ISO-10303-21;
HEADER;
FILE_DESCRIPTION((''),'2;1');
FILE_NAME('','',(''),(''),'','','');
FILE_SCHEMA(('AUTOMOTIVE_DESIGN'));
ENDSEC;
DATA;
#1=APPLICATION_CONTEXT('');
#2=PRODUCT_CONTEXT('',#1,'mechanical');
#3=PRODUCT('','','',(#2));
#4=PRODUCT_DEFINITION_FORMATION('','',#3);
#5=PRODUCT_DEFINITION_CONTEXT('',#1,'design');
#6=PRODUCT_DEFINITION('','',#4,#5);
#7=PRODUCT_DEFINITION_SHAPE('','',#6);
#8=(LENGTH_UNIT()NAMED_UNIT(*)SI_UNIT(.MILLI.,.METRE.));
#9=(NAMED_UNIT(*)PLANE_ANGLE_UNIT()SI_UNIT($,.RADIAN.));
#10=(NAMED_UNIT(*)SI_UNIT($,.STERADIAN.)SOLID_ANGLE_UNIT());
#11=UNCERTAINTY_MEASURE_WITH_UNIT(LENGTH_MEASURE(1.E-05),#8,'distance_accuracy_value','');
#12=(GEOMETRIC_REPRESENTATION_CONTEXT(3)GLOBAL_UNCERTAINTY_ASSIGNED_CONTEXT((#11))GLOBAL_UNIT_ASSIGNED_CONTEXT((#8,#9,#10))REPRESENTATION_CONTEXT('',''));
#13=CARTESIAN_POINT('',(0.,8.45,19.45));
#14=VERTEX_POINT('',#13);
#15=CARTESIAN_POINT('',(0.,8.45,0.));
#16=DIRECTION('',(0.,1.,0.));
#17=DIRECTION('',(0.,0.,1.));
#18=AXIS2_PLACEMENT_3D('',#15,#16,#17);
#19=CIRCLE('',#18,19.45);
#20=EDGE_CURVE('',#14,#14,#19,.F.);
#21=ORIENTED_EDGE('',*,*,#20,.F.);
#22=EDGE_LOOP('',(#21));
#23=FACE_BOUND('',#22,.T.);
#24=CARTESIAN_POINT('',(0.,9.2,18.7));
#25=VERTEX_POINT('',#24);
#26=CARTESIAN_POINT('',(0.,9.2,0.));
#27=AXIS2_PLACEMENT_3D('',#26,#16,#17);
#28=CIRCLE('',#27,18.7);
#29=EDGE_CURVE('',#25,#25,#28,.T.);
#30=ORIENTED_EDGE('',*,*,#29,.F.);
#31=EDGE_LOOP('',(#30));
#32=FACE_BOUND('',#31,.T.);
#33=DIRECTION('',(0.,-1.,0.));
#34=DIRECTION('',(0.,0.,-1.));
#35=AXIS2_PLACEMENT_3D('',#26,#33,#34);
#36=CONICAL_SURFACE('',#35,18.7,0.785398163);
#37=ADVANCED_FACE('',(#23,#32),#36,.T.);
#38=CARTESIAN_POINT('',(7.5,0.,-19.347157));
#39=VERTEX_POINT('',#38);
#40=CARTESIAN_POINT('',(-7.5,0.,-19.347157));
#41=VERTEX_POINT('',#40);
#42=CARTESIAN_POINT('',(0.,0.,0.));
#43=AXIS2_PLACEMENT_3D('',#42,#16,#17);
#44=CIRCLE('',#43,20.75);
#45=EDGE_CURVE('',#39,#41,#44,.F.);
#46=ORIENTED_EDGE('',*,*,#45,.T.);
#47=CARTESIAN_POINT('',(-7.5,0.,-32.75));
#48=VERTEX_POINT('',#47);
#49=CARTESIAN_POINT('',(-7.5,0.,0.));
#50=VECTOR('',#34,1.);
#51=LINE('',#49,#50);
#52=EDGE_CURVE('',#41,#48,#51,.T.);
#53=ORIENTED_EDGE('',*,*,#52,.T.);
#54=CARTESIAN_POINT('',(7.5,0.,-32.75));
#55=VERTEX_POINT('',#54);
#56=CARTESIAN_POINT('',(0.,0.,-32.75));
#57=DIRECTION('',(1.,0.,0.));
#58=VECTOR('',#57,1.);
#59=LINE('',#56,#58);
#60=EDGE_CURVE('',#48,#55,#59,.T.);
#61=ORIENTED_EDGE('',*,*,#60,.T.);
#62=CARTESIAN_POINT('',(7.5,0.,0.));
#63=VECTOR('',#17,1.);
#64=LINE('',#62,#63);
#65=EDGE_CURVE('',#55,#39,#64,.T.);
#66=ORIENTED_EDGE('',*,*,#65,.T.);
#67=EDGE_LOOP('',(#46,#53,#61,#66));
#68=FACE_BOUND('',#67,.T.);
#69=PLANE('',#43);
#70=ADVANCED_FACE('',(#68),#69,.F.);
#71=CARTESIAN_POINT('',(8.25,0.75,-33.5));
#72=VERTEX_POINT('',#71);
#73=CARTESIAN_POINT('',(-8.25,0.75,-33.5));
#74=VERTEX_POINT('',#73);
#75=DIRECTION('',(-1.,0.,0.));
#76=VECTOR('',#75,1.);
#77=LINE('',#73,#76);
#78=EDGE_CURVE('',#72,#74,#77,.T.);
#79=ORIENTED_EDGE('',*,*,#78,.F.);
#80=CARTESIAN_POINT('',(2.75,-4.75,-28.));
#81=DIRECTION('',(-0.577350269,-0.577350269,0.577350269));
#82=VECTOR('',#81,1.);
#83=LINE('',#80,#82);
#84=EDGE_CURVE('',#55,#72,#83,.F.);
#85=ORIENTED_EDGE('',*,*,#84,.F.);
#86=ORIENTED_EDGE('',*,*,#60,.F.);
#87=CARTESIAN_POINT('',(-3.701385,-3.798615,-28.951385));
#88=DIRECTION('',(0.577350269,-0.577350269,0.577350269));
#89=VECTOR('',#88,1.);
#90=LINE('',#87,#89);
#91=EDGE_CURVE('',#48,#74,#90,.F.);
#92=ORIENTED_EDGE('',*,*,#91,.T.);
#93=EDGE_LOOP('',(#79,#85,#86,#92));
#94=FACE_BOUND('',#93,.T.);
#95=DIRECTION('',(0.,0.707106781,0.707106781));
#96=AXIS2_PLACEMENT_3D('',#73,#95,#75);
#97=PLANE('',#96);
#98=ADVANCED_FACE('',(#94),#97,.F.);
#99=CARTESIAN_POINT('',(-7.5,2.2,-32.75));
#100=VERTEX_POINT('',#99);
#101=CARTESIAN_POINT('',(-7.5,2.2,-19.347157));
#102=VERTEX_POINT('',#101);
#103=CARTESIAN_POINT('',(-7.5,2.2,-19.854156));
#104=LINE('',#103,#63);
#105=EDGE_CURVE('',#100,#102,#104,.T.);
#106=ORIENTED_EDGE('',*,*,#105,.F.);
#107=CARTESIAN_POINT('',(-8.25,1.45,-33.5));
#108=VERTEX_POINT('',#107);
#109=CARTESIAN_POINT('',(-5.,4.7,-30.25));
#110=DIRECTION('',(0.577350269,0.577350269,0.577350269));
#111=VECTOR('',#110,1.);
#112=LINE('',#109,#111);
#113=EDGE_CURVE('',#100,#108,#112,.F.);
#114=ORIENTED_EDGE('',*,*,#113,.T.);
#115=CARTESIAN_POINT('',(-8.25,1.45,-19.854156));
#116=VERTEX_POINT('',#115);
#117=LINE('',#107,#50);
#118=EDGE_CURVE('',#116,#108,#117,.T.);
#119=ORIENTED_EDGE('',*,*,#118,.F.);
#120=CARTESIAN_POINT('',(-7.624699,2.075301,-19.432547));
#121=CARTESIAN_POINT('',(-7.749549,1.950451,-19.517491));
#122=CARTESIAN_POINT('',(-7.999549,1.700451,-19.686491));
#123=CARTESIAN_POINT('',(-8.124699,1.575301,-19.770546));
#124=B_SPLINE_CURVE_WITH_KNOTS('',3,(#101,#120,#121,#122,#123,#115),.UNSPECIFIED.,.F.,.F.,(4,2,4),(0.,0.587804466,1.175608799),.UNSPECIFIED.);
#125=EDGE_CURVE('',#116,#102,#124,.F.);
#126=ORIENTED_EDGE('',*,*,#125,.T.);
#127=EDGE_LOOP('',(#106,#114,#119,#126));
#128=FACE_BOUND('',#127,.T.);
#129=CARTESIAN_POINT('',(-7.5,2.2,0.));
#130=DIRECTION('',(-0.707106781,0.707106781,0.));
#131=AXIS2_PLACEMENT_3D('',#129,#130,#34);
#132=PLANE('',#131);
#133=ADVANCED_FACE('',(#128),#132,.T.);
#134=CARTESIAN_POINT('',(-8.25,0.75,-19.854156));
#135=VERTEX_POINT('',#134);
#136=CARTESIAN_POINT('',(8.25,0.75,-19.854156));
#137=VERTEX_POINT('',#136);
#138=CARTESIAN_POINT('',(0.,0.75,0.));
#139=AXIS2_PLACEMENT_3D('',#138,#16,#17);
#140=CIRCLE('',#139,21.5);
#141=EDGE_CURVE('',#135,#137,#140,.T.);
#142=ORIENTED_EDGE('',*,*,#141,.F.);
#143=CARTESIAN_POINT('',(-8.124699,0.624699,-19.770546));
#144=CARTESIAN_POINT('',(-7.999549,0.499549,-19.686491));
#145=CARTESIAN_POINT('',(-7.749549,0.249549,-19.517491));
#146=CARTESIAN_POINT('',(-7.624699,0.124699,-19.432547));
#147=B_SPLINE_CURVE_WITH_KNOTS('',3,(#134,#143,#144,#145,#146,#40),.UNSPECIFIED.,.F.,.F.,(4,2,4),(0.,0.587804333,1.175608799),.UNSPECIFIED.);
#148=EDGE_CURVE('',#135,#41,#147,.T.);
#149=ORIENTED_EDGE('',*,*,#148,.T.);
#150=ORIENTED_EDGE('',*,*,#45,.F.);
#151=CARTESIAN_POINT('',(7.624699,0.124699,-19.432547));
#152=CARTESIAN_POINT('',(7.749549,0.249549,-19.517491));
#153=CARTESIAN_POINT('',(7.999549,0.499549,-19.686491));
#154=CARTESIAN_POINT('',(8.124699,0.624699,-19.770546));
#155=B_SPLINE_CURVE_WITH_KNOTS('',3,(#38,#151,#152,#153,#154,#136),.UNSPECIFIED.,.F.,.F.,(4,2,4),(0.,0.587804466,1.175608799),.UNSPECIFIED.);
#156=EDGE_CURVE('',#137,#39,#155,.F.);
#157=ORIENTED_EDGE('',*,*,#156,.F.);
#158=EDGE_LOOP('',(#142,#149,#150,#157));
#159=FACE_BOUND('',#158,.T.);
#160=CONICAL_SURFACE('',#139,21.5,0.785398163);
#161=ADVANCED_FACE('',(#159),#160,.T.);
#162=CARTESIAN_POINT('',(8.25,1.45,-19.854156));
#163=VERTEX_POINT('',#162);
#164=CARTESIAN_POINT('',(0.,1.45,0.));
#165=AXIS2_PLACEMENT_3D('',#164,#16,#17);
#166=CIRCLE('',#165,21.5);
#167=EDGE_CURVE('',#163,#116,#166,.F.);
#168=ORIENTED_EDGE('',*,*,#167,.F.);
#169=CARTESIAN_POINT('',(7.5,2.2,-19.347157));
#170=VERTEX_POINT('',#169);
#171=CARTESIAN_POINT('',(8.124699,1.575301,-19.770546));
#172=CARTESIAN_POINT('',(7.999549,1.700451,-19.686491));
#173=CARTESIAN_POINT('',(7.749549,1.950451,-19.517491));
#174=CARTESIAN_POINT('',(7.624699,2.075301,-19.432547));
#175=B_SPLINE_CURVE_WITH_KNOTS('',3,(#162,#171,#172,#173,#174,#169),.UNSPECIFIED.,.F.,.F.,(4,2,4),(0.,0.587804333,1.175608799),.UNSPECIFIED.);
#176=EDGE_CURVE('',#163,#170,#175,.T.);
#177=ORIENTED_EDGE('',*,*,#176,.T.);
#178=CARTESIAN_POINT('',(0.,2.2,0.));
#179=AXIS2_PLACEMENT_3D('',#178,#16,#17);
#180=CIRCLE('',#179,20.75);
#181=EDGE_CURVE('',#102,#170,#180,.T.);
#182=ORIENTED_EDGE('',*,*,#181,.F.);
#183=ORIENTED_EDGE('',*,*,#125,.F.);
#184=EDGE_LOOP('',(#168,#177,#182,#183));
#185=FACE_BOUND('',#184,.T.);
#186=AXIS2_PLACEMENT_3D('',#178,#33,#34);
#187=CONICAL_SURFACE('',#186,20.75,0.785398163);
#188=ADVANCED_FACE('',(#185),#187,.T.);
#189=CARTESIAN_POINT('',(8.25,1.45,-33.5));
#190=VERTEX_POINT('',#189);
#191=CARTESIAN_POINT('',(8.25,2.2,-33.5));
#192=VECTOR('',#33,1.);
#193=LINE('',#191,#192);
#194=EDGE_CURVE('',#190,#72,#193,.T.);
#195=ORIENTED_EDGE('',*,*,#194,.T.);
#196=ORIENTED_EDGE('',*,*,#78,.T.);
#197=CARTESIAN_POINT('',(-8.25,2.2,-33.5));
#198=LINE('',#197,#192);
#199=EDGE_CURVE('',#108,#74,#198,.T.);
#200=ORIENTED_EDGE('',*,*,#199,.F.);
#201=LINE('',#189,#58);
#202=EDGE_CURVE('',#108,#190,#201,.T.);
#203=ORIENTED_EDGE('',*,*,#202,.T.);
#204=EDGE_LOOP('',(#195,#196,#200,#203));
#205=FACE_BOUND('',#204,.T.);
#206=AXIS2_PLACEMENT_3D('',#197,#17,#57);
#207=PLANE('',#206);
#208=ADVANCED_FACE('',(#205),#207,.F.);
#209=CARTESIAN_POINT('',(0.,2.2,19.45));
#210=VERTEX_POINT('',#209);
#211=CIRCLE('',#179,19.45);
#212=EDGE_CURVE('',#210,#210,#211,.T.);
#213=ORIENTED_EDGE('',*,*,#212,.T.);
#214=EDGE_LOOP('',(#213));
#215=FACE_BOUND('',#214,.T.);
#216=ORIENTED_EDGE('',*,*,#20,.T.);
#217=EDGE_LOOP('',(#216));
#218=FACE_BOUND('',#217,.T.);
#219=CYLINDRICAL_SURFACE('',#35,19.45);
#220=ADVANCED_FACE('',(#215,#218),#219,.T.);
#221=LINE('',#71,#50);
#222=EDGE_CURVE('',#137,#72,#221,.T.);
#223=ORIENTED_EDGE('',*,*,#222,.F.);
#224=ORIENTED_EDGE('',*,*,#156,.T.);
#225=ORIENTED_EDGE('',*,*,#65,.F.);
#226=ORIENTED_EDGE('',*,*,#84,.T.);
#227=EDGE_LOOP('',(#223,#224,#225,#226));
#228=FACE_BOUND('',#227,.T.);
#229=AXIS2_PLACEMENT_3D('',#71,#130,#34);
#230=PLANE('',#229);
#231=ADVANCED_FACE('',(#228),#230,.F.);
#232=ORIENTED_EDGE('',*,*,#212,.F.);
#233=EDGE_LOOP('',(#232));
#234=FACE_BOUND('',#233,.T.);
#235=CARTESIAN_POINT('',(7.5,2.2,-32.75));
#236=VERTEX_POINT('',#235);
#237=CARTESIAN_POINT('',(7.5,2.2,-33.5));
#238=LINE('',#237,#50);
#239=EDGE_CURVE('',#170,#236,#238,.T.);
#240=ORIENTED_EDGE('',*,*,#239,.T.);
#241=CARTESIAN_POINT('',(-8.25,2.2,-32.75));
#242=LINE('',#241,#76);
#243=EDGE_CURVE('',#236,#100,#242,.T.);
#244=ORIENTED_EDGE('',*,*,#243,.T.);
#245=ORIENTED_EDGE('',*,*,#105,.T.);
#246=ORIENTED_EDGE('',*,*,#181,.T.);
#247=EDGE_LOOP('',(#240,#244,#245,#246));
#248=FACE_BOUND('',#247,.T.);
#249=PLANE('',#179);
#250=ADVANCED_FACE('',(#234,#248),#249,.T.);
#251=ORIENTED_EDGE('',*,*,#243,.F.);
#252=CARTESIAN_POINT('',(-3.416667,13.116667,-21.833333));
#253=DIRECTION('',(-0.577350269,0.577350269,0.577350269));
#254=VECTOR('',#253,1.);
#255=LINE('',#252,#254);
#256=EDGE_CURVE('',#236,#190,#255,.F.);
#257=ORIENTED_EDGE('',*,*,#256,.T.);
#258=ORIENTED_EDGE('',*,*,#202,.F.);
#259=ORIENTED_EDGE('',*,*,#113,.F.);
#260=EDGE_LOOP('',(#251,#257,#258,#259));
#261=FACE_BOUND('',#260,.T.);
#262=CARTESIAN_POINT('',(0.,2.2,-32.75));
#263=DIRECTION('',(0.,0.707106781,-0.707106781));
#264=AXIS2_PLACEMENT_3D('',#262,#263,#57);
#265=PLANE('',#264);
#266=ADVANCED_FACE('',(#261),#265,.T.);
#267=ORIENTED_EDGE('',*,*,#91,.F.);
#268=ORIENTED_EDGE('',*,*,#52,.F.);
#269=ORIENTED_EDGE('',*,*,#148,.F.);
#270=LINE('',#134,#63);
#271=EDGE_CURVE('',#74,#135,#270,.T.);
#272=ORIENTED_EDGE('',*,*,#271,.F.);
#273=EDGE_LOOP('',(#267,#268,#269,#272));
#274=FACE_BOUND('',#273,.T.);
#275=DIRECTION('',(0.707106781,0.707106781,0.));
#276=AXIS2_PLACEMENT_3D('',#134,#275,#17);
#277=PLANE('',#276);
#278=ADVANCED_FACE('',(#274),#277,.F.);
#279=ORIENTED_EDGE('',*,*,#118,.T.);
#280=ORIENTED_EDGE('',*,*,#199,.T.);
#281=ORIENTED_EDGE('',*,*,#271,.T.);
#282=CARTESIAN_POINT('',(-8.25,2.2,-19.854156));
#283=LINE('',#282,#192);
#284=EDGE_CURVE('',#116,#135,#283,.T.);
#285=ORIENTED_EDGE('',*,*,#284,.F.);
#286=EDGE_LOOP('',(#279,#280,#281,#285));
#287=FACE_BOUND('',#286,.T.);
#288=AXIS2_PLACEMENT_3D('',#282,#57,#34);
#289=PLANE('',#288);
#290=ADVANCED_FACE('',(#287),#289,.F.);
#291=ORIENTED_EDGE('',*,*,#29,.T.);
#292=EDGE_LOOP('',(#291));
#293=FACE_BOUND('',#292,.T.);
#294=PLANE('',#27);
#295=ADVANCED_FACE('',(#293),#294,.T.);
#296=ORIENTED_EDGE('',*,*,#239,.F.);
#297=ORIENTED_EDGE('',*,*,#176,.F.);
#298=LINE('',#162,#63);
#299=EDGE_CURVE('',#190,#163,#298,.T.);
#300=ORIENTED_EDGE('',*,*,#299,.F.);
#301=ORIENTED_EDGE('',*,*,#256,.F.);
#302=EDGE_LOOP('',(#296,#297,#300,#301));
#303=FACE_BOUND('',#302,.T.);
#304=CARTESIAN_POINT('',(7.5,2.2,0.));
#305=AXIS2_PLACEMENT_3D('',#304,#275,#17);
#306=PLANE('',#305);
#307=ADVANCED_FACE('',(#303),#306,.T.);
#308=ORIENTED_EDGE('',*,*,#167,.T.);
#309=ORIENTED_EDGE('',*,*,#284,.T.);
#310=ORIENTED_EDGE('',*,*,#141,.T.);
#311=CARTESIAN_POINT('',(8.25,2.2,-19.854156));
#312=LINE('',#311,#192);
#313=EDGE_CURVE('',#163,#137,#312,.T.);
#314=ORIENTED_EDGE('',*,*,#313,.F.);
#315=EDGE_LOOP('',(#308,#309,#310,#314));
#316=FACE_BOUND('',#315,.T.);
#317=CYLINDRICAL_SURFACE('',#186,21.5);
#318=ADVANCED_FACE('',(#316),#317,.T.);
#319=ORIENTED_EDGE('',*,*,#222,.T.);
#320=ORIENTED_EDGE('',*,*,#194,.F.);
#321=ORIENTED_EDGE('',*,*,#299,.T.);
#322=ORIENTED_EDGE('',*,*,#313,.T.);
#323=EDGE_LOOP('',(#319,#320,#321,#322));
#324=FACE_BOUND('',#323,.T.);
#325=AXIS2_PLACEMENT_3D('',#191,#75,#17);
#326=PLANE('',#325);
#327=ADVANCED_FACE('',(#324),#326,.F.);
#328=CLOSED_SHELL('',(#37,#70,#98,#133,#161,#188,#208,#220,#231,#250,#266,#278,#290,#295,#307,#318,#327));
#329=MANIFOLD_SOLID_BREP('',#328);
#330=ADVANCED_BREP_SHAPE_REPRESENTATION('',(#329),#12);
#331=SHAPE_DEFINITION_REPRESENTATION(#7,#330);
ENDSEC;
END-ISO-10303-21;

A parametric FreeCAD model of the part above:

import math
import FreeCAD as App
import Part
import Sketcher
from FreeCAD import Vector


def edges_at(feature, points):
    """Names of the edges that pass closest to the given points."""
    edges = feature.Shape.Edges
    near = lambda p: min(range(len(edges)), key=lambda i: edges[i].distToShape(Part.Vertex(*p))[0])
    return sorted({f"Edge{near(p) + 1}" for p in points})

doc = App.newDocument("Part")
body = doc.addObject("PartDesign::Body", "Body")

sketch1 = body.newObject("Sketcher::SketchObject", "Sketch")
sketch1.AttachmentSupport = (doc.getObject("XZ_Plane"), [""])
sketch1.MapMode = "FlatFace"
sketch1.addGeometry(Part.LineSegment(Vector(-8, -34, 0), Vector(-8, -20, 0)), False)
sketch1.addGeometry(Part.ArcOfCircle(Part.Circle(Vector(0, 0, 0), Vector(0, 0, 1), 22), math.radians(-67), math.radians(247)), False)
sketch1.addGeometry(Part.LineSegment(Vector(8, -20, 0), Vector(8, -34, 0)), False)
sketch1.addGeometry(Part.LineSegment(Vector(8, -34, 0), Vector(-8, -34, 0)), False)
sketch1.addConstraint(Sketcher.Constraint("Coincident", 0, 2, 1, 2))
sketch1.addConstraint(Sketcher.Constraint("Coincident", 1, 1, 2, 1))
sketch1.addConstraint(Sketcher.Constraint("Coincident", 2, 2, 3, 1))
sketch1.addConstraint(Sketcher.Constraint("Coincident", 3, 2, 0, 1))
sketch1.addConstraint(Sketcher.Constraint("Vertical", 0))
sketch1.addConstraint(Sketcher.Constraint("Vertical", 2))
sketch1.addConstraint(Sketcher.Constraint("Horizontal", 3))
sketch1.addConstraint(Sketcher.Constraint("Coincident", 1, 3, -1, 1))
sketch1.addConstraint(Sketcher.Constraint("Horizontal", 0, 2, 1, 1))
sketch1.addConstraint(Sketcher.Constraint("Radius", 1, 21.5))
sketch1.addConstraint(Sketcher.Constraint("DistanceX", 3, 2, 3, 1, 16.5))
sketch1.addConstraint(Sketcher.Constraint("DistanceY", 2, 2, -1, 1, 33.5))
pad1 = body.newObject("PartDesign::Pad", "Pad")
pad1.Profile = sketch1
pad1.Length = 2.2
pad1.Reversed = True

sketch2 = body.newObject("Sketcher::SketchObject", "Sketch001")
sketch2.AttachmentSupport = (doc.getObject("XZ_Plane"), [""])
sketch2.MapMode = "FlatFace"
sketch2.AttachmentOffset = App.Placement(Vector(0, 0, -2.2), App.Rotation())
sketch2.addGeometry(Part.Circle(Vector(0, 0, 0), Vector(0, 0, 1), 19), False)
sketch2.addConstraint(Sketcher.Constraint("Coincident", 0, 3, -1, 1))
sketch2.addConstraint(Sketcher.Constraint("Diameter", 0, 38.9))
pad2 = body.newObject("PartDesign::Pad", "Pad001")
pad2.Profile = sketch2
pad2.Length = 7
pad2.Reversed = True
doc.recompute()

chamfer = body.newObject("PartDesign::Chamfer", "Chamfer")
chamfer.Base = (pad2, edges_at(pad2, [
    (0, 2.2, -33.5),
    (0, 9.2, -19.45),
    (-8.25, 2.2, -26.677),
    (0, 2.2, 21.5),
    (-8.25, 0, -26.677),
    (0, 0, -33.5),
    (8.25, 0, -26.677),
    (0, 0, 21.5),
    (8.25, 2.2, -26.677),
]))
chamfer.Size = 0.75

doc.recompute()
